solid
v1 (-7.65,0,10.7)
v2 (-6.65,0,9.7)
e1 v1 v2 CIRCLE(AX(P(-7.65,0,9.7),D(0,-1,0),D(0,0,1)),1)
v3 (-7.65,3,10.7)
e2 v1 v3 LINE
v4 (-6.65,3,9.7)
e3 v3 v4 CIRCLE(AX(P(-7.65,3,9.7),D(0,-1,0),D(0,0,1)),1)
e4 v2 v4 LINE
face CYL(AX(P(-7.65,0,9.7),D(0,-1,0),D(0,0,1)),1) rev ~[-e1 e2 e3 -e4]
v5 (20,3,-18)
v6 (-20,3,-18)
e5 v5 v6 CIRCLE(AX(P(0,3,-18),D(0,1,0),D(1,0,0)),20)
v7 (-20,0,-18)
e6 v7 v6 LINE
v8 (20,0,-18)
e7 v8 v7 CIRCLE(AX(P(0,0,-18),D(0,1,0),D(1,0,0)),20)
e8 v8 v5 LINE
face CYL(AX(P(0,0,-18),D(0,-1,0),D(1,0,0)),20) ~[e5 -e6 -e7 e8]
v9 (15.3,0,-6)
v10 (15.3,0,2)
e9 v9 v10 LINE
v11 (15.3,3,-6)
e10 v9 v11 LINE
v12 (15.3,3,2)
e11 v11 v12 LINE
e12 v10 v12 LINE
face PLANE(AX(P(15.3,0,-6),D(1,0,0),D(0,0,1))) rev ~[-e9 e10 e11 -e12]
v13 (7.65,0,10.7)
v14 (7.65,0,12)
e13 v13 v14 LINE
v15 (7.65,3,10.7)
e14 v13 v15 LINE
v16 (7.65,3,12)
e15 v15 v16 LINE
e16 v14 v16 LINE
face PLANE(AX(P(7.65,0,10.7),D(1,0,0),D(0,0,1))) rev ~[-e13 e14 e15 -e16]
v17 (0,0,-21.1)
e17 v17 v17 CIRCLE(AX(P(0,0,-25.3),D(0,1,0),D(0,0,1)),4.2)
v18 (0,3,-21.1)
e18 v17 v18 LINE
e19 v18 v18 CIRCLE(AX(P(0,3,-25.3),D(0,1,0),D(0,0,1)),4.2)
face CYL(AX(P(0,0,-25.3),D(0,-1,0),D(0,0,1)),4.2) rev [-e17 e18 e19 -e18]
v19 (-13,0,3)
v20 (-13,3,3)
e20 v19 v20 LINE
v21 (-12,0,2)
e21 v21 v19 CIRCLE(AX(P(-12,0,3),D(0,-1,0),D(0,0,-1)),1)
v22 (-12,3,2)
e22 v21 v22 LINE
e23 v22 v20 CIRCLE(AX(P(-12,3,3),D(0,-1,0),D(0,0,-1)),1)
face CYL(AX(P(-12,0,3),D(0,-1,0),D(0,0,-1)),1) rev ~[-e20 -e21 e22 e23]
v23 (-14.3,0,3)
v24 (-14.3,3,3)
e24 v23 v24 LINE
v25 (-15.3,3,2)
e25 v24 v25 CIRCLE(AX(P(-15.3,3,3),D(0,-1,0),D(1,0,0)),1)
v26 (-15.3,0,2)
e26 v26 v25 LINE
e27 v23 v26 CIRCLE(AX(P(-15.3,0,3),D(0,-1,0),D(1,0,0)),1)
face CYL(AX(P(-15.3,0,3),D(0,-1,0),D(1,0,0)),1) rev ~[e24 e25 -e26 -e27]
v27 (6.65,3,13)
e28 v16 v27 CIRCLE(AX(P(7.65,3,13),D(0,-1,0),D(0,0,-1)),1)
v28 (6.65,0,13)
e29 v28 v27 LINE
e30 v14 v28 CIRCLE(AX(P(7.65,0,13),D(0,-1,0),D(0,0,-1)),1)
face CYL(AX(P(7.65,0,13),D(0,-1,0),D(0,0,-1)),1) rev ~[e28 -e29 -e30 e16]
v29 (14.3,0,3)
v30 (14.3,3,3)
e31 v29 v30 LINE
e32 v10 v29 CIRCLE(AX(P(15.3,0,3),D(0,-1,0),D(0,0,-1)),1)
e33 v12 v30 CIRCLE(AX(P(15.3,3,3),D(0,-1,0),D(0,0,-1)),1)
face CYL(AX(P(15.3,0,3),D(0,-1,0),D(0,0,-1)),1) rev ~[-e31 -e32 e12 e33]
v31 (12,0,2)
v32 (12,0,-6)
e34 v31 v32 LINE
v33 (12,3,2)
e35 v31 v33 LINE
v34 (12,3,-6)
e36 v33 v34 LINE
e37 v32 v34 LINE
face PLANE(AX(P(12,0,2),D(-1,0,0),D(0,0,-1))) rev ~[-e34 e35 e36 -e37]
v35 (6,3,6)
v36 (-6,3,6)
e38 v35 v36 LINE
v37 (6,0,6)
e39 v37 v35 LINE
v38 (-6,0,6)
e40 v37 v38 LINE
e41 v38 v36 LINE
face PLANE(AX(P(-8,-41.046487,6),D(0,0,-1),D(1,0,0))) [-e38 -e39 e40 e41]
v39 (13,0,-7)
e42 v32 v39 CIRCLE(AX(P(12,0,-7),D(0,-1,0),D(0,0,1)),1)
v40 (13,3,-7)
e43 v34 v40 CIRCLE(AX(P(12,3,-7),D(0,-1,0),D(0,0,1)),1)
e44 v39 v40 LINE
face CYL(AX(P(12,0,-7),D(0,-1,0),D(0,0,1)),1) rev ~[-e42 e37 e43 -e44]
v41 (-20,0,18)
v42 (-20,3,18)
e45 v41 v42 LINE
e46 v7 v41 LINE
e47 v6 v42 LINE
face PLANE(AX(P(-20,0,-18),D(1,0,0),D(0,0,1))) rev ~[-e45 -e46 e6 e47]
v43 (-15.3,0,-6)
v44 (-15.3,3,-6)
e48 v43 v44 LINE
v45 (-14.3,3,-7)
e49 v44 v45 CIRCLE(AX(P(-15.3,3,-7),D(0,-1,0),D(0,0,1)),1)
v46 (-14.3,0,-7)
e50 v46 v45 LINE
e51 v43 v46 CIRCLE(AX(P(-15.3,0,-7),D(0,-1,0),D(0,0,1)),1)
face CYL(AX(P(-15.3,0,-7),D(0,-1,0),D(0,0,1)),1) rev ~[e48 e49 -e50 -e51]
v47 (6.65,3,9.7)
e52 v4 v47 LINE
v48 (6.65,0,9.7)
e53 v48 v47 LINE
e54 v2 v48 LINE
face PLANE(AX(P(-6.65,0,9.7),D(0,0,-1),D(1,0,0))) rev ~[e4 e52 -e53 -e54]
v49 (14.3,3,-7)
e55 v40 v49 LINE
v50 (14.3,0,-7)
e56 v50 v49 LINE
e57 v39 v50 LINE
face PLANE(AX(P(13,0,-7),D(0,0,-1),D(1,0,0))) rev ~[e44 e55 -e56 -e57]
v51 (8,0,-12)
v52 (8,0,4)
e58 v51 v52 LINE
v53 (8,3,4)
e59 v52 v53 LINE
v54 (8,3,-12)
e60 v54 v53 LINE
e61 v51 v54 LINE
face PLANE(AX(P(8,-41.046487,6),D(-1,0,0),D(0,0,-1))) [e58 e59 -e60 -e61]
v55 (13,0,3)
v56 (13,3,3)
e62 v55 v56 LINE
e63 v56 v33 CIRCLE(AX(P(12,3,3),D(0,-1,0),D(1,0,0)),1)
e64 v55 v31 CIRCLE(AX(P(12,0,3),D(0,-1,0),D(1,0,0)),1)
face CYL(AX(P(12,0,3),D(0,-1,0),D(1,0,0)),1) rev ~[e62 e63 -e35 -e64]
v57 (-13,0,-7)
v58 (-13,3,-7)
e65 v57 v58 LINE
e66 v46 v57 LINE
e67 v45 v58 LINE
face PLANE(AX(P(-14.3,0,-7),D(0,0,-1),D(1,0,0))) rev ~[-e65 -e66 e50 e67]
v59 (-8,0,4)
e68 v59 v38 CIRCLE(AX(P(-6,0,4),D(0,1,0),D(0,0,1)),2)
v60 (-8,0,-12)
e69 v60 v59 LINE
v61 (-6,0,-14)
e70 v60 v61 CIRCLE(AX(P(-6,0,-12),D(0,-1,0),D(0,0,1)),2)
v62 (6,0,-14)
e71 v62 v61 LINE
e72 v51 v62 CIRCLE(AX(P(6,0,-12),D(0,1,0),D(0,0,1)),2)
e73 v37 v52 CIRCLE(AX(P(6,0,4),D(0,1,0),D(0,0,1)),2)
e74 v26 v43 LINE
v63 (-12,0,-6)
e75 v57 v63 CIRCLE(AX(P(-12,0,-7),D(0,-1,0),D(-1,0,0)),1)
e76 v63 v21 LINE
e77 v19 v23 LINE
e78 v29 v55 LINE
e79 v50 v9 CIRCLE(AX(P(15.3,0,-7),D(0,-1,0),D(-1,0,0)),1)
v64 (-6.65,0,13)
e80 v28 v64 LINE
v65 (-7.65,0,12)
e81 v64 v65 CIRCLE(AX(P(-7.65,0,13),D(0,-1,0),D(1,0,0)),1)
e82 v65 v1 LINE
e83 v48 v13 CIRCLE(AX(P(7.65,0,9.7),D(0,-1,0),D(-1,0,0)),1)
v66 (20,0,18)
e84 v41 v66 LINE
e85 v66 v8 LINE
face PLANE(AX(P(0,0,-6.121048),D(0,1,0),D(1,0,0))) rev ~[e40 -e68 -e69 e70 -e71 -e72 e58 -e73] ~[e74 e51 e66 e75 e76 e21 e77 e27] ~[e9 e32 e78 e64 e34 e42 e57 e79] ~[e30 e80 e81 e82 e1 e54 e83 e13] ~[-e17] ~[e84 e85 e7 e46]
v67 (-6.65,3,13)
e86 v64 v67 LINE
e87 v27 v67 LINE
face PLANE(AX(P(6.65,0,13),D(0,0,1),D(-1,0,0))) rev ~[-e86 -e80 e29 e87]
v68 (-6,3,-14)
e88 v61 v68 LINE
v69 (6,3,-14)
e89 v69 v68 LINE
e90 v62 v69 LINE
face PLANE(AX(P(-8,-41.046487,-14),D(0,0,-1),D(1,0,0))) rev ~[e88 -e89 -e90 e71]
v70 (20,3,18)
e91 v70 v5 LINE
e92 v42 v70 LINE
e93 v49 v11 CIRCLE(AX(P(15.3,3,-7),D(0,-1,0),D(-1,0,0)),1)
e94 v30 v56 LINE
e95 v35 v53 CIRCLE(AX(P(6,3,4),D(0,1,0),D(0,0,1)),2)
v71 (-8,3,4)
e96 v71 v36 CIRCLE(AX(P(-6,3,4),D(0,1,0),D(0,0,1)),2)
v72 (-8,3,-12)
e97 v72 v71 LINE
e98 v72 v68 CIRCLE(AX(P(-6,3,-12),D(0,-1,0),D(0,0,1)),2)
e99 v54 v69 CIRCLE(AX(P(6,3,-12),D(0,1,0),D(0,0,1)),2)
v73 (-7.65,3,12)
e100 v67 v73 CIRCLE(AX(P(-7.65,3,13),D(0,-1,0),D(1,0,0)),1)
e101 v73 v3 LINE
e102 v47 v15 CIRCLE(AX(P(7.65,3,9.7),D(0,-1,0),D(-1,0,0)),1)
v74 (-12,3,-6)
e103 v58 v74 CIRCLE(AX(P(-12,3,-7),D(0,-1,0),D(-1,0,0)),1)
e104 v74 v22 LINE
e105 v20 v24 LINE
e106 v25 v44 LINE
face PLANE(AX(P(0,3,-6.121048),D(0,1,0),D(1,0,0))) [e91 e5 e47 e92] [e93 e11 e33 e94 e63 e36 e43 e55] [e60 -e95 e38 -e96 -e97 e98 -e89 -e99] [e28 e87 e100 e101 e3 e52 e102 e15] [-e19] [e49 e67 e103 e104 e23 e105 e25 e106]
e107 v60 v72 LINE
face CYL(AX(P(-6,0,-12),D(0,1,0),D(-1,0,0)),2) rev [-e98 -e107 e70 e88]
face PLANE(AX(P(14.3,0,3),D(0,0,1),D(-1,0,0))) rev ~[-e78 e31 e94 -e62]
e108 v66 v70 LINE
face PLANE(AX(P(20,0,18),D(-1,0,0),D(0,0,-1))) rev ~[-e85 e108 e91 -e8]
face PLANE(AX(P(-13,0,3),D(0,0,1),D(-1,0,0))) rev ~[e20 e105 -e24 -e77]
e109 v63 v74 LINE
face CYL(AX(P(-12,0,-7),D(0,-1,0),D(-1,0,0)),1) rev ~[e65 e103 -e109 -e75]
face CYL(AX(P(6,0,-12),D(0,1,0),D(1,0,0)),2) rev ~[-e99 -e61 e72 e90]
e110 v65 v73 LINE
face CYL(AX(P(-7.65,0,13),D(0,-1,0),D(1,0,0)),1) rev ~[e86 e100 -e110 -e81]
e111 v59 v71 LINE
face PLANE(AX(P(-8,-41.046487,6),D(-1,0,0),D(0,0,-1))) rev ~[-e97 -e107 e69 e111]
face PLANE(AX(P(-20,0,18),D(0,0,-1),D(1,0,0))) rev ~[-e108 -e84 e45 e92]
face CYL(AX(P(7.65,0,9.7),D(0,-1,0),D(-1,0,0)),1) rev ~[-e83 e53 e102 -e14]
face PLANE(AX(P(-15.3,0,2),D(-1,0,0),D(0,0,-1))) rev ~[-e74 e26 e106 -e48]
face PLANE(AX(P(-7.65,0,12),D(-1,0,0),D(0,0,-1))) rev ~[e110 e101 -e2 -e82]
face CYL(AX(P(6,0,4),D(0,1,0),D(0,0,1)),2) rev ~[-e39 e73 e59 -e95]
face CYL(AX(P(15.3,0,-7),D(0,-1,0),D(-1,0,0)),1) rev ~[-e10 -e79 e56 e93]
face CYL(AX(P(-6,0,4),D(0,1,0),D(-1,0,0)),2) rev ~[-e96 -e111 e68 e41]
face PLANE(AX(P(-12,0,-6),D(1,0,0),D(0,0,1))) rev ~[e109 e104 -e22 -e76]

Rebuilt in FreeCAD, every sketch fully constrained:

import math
import FreeCAD as App
import Part
import Sketcher

V = App.Vector
Q = App.Units.Quantity


def edges_at(feature, points):
    """Names of the edges that pass closest to the given points."""
    edges = feature.Shape.Edges
    near = lambda p: min(range(len(edges)), key=lambda i: edges[i].distToShape(Part.Vertex(*p))[0])
    return sorted({f"Edge{near(p) + 1}" for p in points})

doc = App.newDocument("Part")
params = doc.addObject("Spreadsheet::Sheet", "Params")
for row, (alias, value) in enumerate([
    ("sketch1_radius", "20 mm"),
    ("sketch1_radius2", "1 mm"),
    ("sketch1_diameter", "8.4 mm"),
    ("sketch1_height", "36 mm"),
    ("sketch1_height2", "8 mm"),
    ("pad1_length", "3 mm"),
    ("sketch2_width", "16 mm"),
    ("sketch2_height", "20 mm"),
    ("fillet_radius", "2 mm"),
], start=1):
    params.set(f"A{row}", alias)
    params.set(f"B{row}", "=" + value)
    params.setAlias(f"B{row}", alias)

body = doc.addObject("PartDesign::Body", "Body")

# Sketch on XZ plane
sketch1 = body.newObject("Sketcher::SketchObject", "Sketch")
sketch1.AttachmentSupport = (doc.getObject("XZ_Plane"), [""])
sketch1.MapMode = "FlatFace"
sketch1.addGeometry(Part.ArcOfCircle(Part.Circle(V(0, -18, 0), V(0, 0, 1), 20), math.radians(180), math.radians(360)), False)
sketch1.addGeometry(Part.LineSegment(V(-20, -18, 0), V(-20, 18, 0)), False)
sketch1.addGeometry(Part.LineSegment(V(-20, 18, 0), V(20, 18, 0)), False)
sketch1.addGeometry(Part.LineSegment(V(20, 18, 0), V(20, -18, 0)), False)
sketch1.addGeometry(Part.ArcOfCircle(Part.Circle(V(-12, -7, 0), V(0, 0, 1), 1), math.radians(180), math.radians(450)), False)
sketch1.addGeometry(Part.LineSegment(V(-12, -6, 0), V(-12, 2, 0)), False)
sketch1.addGeometry(Part.ArcOfCircle(Part.Circle(V(-12, 3, 0), V(0, 0, 1), 1), math.radians(-90), math.radians(180)), False)
sketch1.addGeometry(Part.LineSegment(V(-13, 3, 0), V(-14.3, 3, 0)), False)
sketch1.addGeometry(Part.ArcOfCircle(Part.Circle(V(-15.3, 3, 0), V(0, 0, 1), 1), math.radians(0), math.radians(270)), False)
sketch1.addGeometry(Part.LineSegment(V(-15.3, 2, 0), V(-15.3, -6, 0)), False)
sketch1.addGeometry(Part.ArcOfCircle(Part.Circle(V(-15.3, -7, 0), V(0, 0, 1), 1), math.radians(90), math.radians(360)), False)
sketch1.addGeometry(Part.LineSegment(V(-14.3, -7, 0), V(-13, -7, 0)), False)
sketch1.addGeometry(Part.ArcOfCircle(Part.Circle(V(-7.7, 13, 0), V(0, 0, 1), 1), math.radians(0), math.radians(270)), False)
sketch1.addGeometry(Part.LineSegment(V(-7.7, 12, 0), V(-7.7, 10.7, 0)), False)
sketch1.addGeometry(Part.ArcOfCircle(Part.Circle(V(-7.7, 9.7, 0), V(0, 0, 1), 1), math.radians(90), math.radians(360)), False)
sketch1.addGeometry(Part.LineSegment(V(-6.7, 9.7, 0), V(6.7, 9.7, 0)), False)
sketch1.addGeometry(Part.ArcOfCircle(Part.Circle(V(7.7, 9.7, 0), V(0, 0, 1), 1), math.radians(180), math.radians(450)), False)
sketch1.addGeometry(Part.LineSegment(V(7.7, 10.7, 0), V(7.7, 12, 0)), False)
sketch1.addGeometry(Part.ArcOfCircle(Part.Circle(V(7.7, 13, 0), V(0, 0, 1), 1), math.radians(-90), math.radians(180)), False)
sketch1.addGeometry(Part.LineSegment(V(6.7, 13, 0), V(-6.7, 13, 0)), False)
sketch1.addGeometry(Part.ArcOfCircle(Part.Circle(V(15.3, -7, 0), V(0, 0, 1), 1), math.radians(180), math.radians(450)), False)
sketch1.addGeometry(Part.LineSegment(V(15.3, -6, 0), V(15.3, 2, 0)), False)
sketch1.addGeometry(Part.ArcOfCircle(Part.Circle(V(15.3, 3, 0), V(0, 0, 1), 1), math.radians(-90), math.radians(180)), False)
sketch1.addGeometry(Part.LineSegment(V(14.3, 3, 0), V(13, 3, 0)), False)
sketch1.addGeometry(Part.ArcOfCircle(Part.Circle(V(12, 3, 0), V(0, 0, 1), 1), math.radians(0), math.radians(270)), False)
sketch1.addGeometry(Part.LineSegment(V(12, 2, 0), V(12, -6, 0)), False)
sketch1.addGeometry(Part.ArcOfCircle(Part.Circle(V(12, -7, 0), V(0, 0, 1), 1), math.radians(90), math.radians(360)), False)
sketch1.addGeometry(Part.LineSegment(V(13, -7, 0), V(14.3, -7, 0)), False)
sketch1.addGeometry(Part.Circle(V(0, -25.3, 0), V(0, 0, 1), 4.2), False)
sketch1.addConstraint(Sketcher.Constraint("Tangent", 0, 1, 1, 1))
sketch1.addConstraint(Sketcher.Constraint("Coincident", 1, 2, 2, 1))
sketch1.addConstraint(Sketcher.Constraint("Coincident", 2, 2, 3, 1))
sketch1.addConstraint(Sketcher.Constraint("Tangent", 3, 2, 0, 2))
sketch1.addConstraint(Sketcher.Constraint("Coincident", 4, 2, 5, 1))
sketch1.addConstraint(Sketcher.Constraint("Coincident", 5, 2, 6, 1))
sketch1.addConstraint(Sketcher.Constraint("Coincident", 6, 2, 7, 1))
sketch1.addConstraint(Sketcher.Constraint("Coincident", 7, 2, 8, 1))
sketch1.addConstraint(Sketcher.Constraint("Coincident", 8, 2, 9, 1))
sketch1.addConstraint(Sketcher.Constraint("Coincident", 9, 2, 10, 1))
sketch1.addConstraint(Sketcher.Constraint("Coincident", 10, 2, 11, 1))
sketch1.addConstraint(Sketcher.Constraint("Coincident", 11, 2, 4, 1))
sketch1.addConstraint(Sketcher.Constraint("Coincident", 12, 2, 13, 1))
sketch1.addConstraint(Sketcher.Constraint("Coincident", 13, 2, 14, 1))
sketch1.addConstraint(Sketcher.Constraint("Coincident", 14, 2, 15, 1))
sketch1.addConstraint(Sketcher.Constraint("Coincident", 15, 2, 16, 1))
sketch1.addConstraint(Sketcher.Constraint("Coincident", 16, 2, 17, 1))
sketch1.addConstraint(Sketcher.Constraint("Coincident", 17, 2, 18, 1))
sketch1.addConstraint(Sketcher.Constraint("Coincident", 18, 2, 19, 1))
sketch1.addConstraint(Sketcher.Constraint("Coincident", 19, 2, 12, 1))
sketch1.addConstraint(Sketcher.Constraint("Coincident", 20, 2, 21, 1))
sketch1.addConstraint(Sketcher.Constraint("Coincident", 21, 2, 22, 1))
sketch1.addConstraint(Sketcher.Constraint("Coincident", 22, 2, 23, 1))
sketch1.addConstraint(Sketcher.Constraint("Coincident", 23, 2, 24, 1))
sketch1.addConstraint(Sketcher.Constraint("Coincident", 24, 2, 25, 1))
sketch1.addConstraint(Sketcher.Constraint("Coincident", 25, 2, 26, 1))
sketch1.addConstraint(Sketcher.Constraint("Coincident", 26, 2, 27, 1))
sketch1.addConstraint(Sketcher.Constraint("Coincident", 27, 2, 20, 1))
sketch1.addConstraint(Sketcher.Constraint("Vertical", 1))
sketch1.addConstraint(Sketcher.Constraint("Horizontal", 2))
sketch1.addConstraint(Sketcher.Constraint("Vertical", 3))
sketch1.addConstraint(Sketcher.Constraint("Vertical", 5))
sketch1.addConstraint(Sketcher.Constraint("Horizontal", 7))
sketch1.addConstraint(Sketcher.Constraint("Vertical", 9))
sketch1.addConstraint(Sketcher.Constraint("Horizontal", 11))
sketch1.addConstraint(Sketcher.Constraint("Vertical", 13))
sketch1.addConstraint(Sketcher.Constraint("Horizontal", 15))
sketch1.addConstraint(Sketcher.Constraint("Vertical", 17))
sketch1.addConstraint(Sketcher.Constraint("Horizontal", 19))
sketch1.addConstraint(Sketcher.Constraint("Vertical", 21))
sketch1.addConstraint(Sketcher.Constraint("Horizontal", 23))
sketch1.addConstraint(Sketcher.Constraint("Vertical", 25))
sketch1.addConstraint(Sketcher.Constraint("Horizontal", 27))
sketch1.addConstraint(Sketcher.Constraint("Equal", 4, 6))
sketch1.addConstraint(Sketcher.Constraint("Equal", 6, 8))
sketch1.addConstraint(Sketcher.Constraint("Equal", 8, 10))
sketch1.addConstraint(Sketcher.Constraint("Equal", 10, 12))
sketch1.addConstraint(Sketcher.Constraint("Equal", 12, 14))
sketch1.addConstraint(Sketcher.Constraint("Equal", 14, 16))
sketch1.addConstraint(Sketcher.Constraint("Equal", 16, 18))
sketch1.addConstraint(Sketcher.Constraint("Equal", 18, 20))
sketch1.addConstraint(Sketcher.Constraint("Equal", 20, 22))
sketch1.addConstraint(Sketcher.Constraint("Equal", 22, 24))
sketch1.addConstraint(Sketcher.Constraint("Equal", 24, 26))
sketch1.addConstraint(Sketcher.Constraint("Symmetric", 0, 1, 2, 2, -1, 1))
sketch1.addConstraint(Sketcher.Constraint("Symmetric", 14, 3, 16, 3, -2))
sketch1.addConstraint(Sketcher.Constraint("Symmetric", 12, 3, 18, 3, -2))
sketch1.addConstraint(Sketcher.Constraint("Symmetric", 10, 3, 20, 3, -2))
sketch1.addConstraint(Sketcher.Constraint("Symmetric", 8, 3, 22, 3, -2))
sketch1.addConstraint(Sketcher.Constraint("Symmetric", 6, 3, 24, 3, -2))
sketch1.addConstraint(Sketcher.Constraint("Symmetric", 4, 3, 26, 3, -2))
sketch1.addConstraint(Sketcher.Constraint("PointOnObject", 28, 3, -2))
sketch1.addConstraint(Sketcher.Constraint("Horizontal", 6, 3, 8, 3))
sketch1.addConstraint(Sketcher.Constraint("Horizontal", 4, 3, 10, 3))
sketch1.addConstraint(Sketcher.Constraint("Horizontal", 24, 3, 6, 2))
sketch1.addConstraint(Sketcher.Constraint("Horizontal", 26, 3, 10, 2))
sketch1.addConstraint(Sketcher.Constraint("Horizontal", 16, 3, 14, 2))
sketch1.addConstraint(Sketcher.Constraint("Horizontal", 12, 3, 18, 2))
sketch1.addConstraint(Sketcher.Constraint("Horizontal", 7, 2, 22, 2))
sketch1.addConstraint(Sketcher.Constraint("Horizontal", 11, 2, 26, 2))
sketch1.addConstraint(Sketcher.Constraint("Vertical", 4, 3, 6, 3))
sketch1.addConstraint(Sketcher.Constraint("Vertical", 8, 3, 10, 3))
sketch1.addConstraint(Sketcher.Constraint("Vertical", 12, 3, 14, 3))
sketch1.addConstraint(Sketcher.Constraint("Vertical", 6, 3, 4, 2))
sketch1.addConstraint(Sketcher.Constraint("Vertical", 10, 3, 8, 2))
sketch1.addConstraint(Sketcher.Constraint("Vertical", 14, 3, 12, 2))
sketch1.addConstraint(Sketcher.Constraint("Vertical", 18, 3, 16, 2))
sketch1.addConstraint(Sketcher.Constraint("Vertical", 22, 3, 20, 2))
sketch1.addConstraint(Sketcher.Constraint("Vertical", 26, 3, 24, 2))
sketch1.addConstraint(Sketcher.Constraint("Equal", 27, 13))
sketch1.addConstraint(Sketcher.Constraint("Radius", 0, Q("20 mm")))
sketch1.addConstraint(Sketcher.Constraint("Radius", 4, Q("1 mm")))
sketch1.addConstraint(Sketcher.Constraint("Diameter", 28, Q("8.4 mm")))
sketch1.addConstraint(Sketcher.Constraint("DistanceY", 1, 1, 1, 2, Q("36 mm")))
sketch1.addConstraint(Sketcher.Constraint("DistanceY", 5, 1, 5, 2, Q("8 mm")))
sketch1.addConstraint(Sketcher.Constraint("DistanceX", 7, 2, 7, 1, Q("1.3 mm")))
sketch1.addConstraint(Sketcher.Constraint("DistanceX", 15, 1, 15, 2, Q("13.3 mm")))
sketch1.addConstraint(Sketcher.Constraint("DistanceX", 4, 3, -1, 1, Q("12 mm")))
sketch1.addConstraint(Sketcher.Constraint("DistanceY", 4, 3, -1, 1, Q("7 mm")))
sketch1.addConstraint(Sketcher.Constraint("DistanceY", -1, 1, 12, 3, Q("13 mm")))
sketch1.addConstraint(Sketcher.Constraint("DistanceY", 28, 3, -1, 1, Q("25.3 mm")))
sketch1.setExpression("Constraints[80]", "Params.sketch1_radius")
sketch1.setExpression("Constraints[81]", "Params.sketch1_radius2")
sketch1.setExpression("Constraints[82]", "Params.sketch1_diameter")
sketch1.setExpression("Constraints[83]", "Params.sketch1_height")
sketch1.setExpression("Constraints[84]", "Params.sketch1_height2")
pad1 = body.newObject("PartDesign::Pad", "Pad")
pad1.Profile = sketch1
pad1.setExpression("Length", "Params.pad1_length")
pad1.Reversed = True

# Sketch on XZ plane
sketch2 = body.newObject("Sketcher::SketchObject", "Sketch001")
sketch2.AttachmentSupport = (doc.getObject("XZ_Plane"), [""])
sketch2.MapMode = "FlatFace"
sketch2.AttachmentOffset = App.Placement(V(0, 0, -3), App.Rotation())
sketch2.addGeometry(Part.LineSegment(V(-8, -14, 0), V(-8, 6, 0)), False)
sketch2.addGeometry(Part.LineSegment(V(-8, 6, 0), V(8, 6, 0)), False)
sketch2.addGeometry(Part.LineSegment(V(8, 6, 0), V(8, -14, 0)), False)
sketch2.addGeometry(Part.LineSegment(V(8, -14, 0), V(-8, -14, 0)), False)
sketch2.addConstraint(Sketcher.Constraint("Coincident", 0, 2, 1, 1))
sketch2.addConstraint(Sketcher.Constraint("Coincident", 1, 2, 2, 1))
sketch2.addConstraint(Sketcher.Constraint("Coincident", 2, 2, 3, 1))
sketch2.addConstraint(Sketcher.Constraint("Coincident", 3, 2, 0, 1))
sketch2.addConstraint(Sketcher.Constraint("Vertical", 0))
sketch2.addConstraint(Sketcher.Constraint("Horizontal", 1))
sketch2.addConstraint(Sketcher.Constraint("Vertical", 2))
sketch2.addConstraint(Sketcher.Constraint("Horizontal", 3))
sketch2.addConstraint(Sketcher.Constraint("DistanceX", 1, 1, 1, 2, Q("16 mm")))
sketch2.addConstraint(Sketcher.Constraint("DistanceY", 0, 1, 0, 2, Q("20 mm")))
sketch2.addConstraint(Sketcher.Constraint("DistanceX", 0, 2, -1, 1, Q("8 mm")))
sketch2.addConstraint(Sketcher.Constraint("DistanceY", -1, 1, 0, 2, Q("6 mm")))
sketch2.setExpression("Constraints[8]", "Params.sketch2_width")
sketch2.setExpression("Constraints[9]", "Params.sketch2_height")
pocket1 = body.newObject("PartDesign::Pocket", "Pocket")
pocket1.Profile = sketch2
pocket1.Type = "ThroughAll"
pocket1.Midplane = True
doc.recompute()

fillet = body.newObject("PartDesign::Fillet", "Fillet")
fillet.Base = (pocket1, edges_at(pocket1, [
    (8, 1.5, -14),
    (8, 1.5, 6),
    (-8, 1.5, 6),
    (-8, 1.5, -14),
]))
fillet.setExpression("Radius", "Params.fillet_radius")

doc.recompute()
